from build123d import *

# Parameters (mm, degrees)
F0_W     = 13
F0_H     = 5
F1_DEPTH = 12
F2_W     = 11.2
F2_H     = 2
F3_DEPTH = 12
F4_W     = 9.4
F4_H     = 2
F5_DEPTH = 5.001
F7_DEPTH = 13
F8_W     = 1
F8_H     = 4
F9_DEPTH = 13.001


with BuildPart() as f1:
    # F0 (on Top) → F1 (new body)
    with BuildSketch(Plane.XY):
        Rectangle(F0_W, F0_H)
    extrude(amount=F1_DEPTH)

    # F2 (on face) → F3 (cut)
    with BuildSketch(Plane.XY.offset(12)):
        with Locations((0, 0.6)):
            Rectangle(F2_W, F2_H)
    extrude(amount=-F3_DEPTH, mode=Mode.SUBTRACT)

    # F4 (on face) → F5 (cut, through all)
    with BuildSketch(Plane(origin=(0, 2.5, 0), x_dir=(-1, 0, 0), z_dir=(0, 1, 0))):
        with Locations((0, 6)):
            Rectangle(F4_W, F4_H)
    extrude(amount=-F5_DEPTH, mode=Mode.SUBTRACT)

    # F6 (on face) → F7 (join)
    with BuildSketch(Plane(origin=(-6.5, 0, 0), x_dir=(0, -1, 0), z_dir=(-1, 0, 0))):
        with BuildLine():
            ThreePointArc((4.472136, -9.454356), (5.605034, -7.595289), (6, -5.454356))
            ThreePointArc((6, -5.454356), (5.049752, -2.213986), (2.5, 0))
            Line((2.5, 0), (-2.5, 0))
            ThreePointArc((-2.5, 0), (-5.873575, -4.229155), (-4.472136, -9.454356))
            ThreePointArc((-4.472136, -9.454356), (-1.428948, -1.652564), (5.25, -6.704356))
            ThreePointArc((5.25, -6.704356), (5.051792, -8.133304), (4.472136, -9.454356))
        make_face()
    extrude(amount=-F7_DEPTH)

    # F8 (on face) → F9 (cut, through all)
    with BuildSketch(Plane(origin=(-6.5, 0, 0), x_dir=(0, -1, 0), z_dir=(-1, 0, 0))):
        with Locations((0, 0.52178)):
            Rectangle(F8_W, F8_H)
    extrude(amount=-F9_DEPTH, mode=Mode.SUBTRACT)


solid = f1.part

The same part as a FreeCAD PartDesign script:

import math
import FreeCAD as App
import Part
import Sketcher

V = App.Vector
Q = App.Units.Quantity


def add_polygon(sketch, points):
    """Adds a closed chain of lines whose ends are joined by coincident constraints."""
    first, n = sketch.GeometryCount, len(points)
    for a, b in zip(points, points[1:] + points[:1]):
        sketch.addGeometry(Part.LineSegment(App.Vector(*a, 0), App.Vector(*b, 0)), False)
    for i in range(n):
        sketch.addConstraint(Sketcher.Constraint("Coincident", first + i, 2, first + (i + 1) % n, 1))

doc = App.newDocument("Part")
body = doc.addObject("PartDesign::Body", "Body")

sketch1 = body.newObject("Sketcher::SketchObject", "Sketch")
sketch1.AttachmentSupport = (doc.getObject("XY_Plane"), [""])
sketch1.MapMode = "FlatFace"
add_polygon(sketch1, [(-6, 2), (-6, -2), (6, -2), (6, 2)])
sketch1.addConstraint([
    Sketcher.Constraint("Vertical", 0),
    Sketcher.Constraint("Horizontal", 1),
    Sketcher.Constraint("Vertical", 2),
    Sketcher.Constraint("Horizontal", 3),
    Sketcher.Constraint("Symmetric", 0, 2, 2, 2, -1, 1),
    Sketcher.Constraint("DistanceX", 1, 1, 1, 2, Q("13 mm")),
    Sketcher.Constraint("DistanceY", 0, 2, 0, 1, Q("5 mm")),
])
pad1 = body.newObject("PartDesign::Pad", "Pad")
pad1.Profile = sketch1
pad1.Length = 12

sketch2 = body.newObject("Sketcher::SketchObject", "Sketch001")
sketch2.AttachmentSupport = (doc.getObject("XY_Plane"), [""])
sketch2.MapMode = "FlatFace"
sketch2.AttachmentOffset = App.Placement(V(0, 0, 12), App.Rotation())
add_polygon(sketch2, [(-5.6, 1.6), (-5.6, -0.4), (5.6, -0.4), (5.6, 1.6)])
sketch2.addConstraint([
    Sketcher.Constraint("Vertical", 0),
    Sketcher.Constraint("Horizontal", 1),
    Sketcher.Constraint("Vertical", 2),
    Sketcher.Constraint("Horizontal", 3),
    Sketcher.Constraint("DistanceY", 0, 2, 0, 1, Q("2 mm")),
    Sketcher.Constraint("DistanceX", 1, 1, 1, 2, Q("11.2 mm")),
    Sketcher.Constraint("DistanceX", 0, 2, -1, 1, Q("5.6 mm")),
    Sketcher.Constraint("DistanceY", 0, 2, -1, 1, Q("0.4 mm")),
])
pocket1 = body.newObject("PartDesign::Pocket", "Pocket")
pocket1.Profile = sketch2
pocket1.Length = 12

sketch3 = body.newObject("Sketcher::SketchObject", "Sketch002")
sketch3.AttachmentSupport = (doc.getObject("XZ_Plane"), [""])
sketch3.MapMode = "FlatFace"
sketch3.AttachmentOffset = App.Placement(V(0, 0, -2.5), App.Rotation())
add_polygon(sketch3, [(4.7, 7), (4.7, 5), (-4.7, 5), (-4.7, 7)])
sketch3.addConstraint([
    Sketcher.Constraint("Vertical", 0),
    Sketcher.Constraint("Horizontal", 1),
    Sketcher.Constraint("Vertical", 2),
    Sketcher.Constraint("Horizontal", 3),
    Sketcher.Constraint("DistanceY", 0, 2, 0, 1, Q("2 mm")),
    Sketcher.Constraint("DistanceX", 1, 2, 1, 1, Q("9.4 mm")),
    Sketcher.Constraint("DistanceY", -1, 1, 0, 2, Q("5 mm")),
    Sketcher.Constraint("DistanceX", -1, 1, 0, 2, Q("4.7 mm")),
])
pocket2 = body.newObject("PartDesign::Pocket", "Pocket001")
pocket2.Profile = sketch3
pocket2.Type = "ThroughAll"
pocket2.Reversed = True

sketch4 = body.newObject("Sketcher::SketchObject", "Sketch003")
sketch4.AttachmentSupport = (doc.getObject("YZ_Plane"), [""])
sketch4.MapMode = "FlatFace"
sketch4.AttachmentOffset = App.Placement(V(0, 0, -6.5), App.Rotation())
sketch4.addGeometry([
    Part.ArcOfCircle(Part.Circle(V(0, -5.5, 0), V(0, 0, 1), 6), math.radians(180), math.radians(222)),
    Part.ArcOfCircle(Part.Circle(V(0, -5.5, 0), V(0, 0, 1), 6), math.radians(115), math.radians(180)),
    Part.LineSegment(V(-2.5, 0, 0), V(2.5, 0, 0)),
    Part.ArcOfCircle(Part.Circle(V(0, -5.5, 0), V(0, 0, 1), 6), math.radians(-42), math.radians(65)),
    Part.ArcOfCircle(Part.Circle(V(0, -6.7, 0), V(0, 0, 1), 5.2), math.radians(-32), math.radians(180)),
    Part.ArcOfCircle(Part.Circle(V(0, -6.7, 0), V(0, 0, 1), 5.3), math.radians(-180), math.radians(-148)),
], False)
sketch4.addConstraint([
    Sketcher.Constraint("Tangent", 0, 1, 1, 2),
    Sketcher.Constraint("Coincident", 1, 1, 2, 1),
    Sketcher.Constraint("Coincident", 2, 2, 3, 2),
    Sketcher.Constraint("Coincident", 3, 1, 4, 1),
    Sketcher.Constraint("Tangent", 4, 2, 5, 1),
    Sketcher.Constraint("Coincident", 5, 2, 0, 2),
    Sketcher.Constraint("Horizontal", 2),
    Sketcher.Constraint("Coincident", 3, 3, 0, 3),
    Sketcher.Constraint("Equal", 0, 3),
    Sketcher.Constraint("Symmetric", 1, 1, 2, 2, -1, 1),
    Sketcher.Constraint("Symmetric", 3, 1, 5, 2, -2),
    Sketcher.Constraint("PointOnObject", 4, 3, -2),
    Sketcher.Constraint("Horizontal", 3, 3, 0, 1),
    Sketcher.Constraint("Radius", 0, Q("6 mm")),
    Sketcher.Constraint("DistanceX", 2, 1, 2, 2, Q("5 mm")),
    Sketcher.Constraint("Radius", 4, Q("5.25 mm")),
    Sketcher.Constraint("DistanceY", 3, 1, 1, 3, Q("3.999998 mm")),
    Sketcher.Constraint("DistanceY", 4, 2, 0, 1, Q("1.25 mm")),
])
pad2 = body.newObject("PartDesign::Pad", "Pad001")
pad2.Profile = sketch4
pad2.Length = 13

sketch5 = body.newObject("Sketcher::SketchObject", "Sketch004")
sketch5.AttachmentSupport = (doc.getObject("YZ_Plane"), [""])
sketch5.MapMode = "FlatFace"
sketch5.AttachmentOffset = App.Placement(V(0, 0, -6.5), App.Rotation())
add_polygon(sketch5, [(0.5, 2.5), (0.5, -1.5), (-0.5, -1.5), (-0.5, 2.5)])
sketch5.addConstraint([
    Sketcher.Constraint("Vertical", 0),
    Sketcher.Constraint("Horizontal", 1),
    Sketcher.Constraint("Vertical", 2),
    Sketcher.Constraint("Horizontal", 3),
    Sketcher.Constraint("DistanceX", 1, 2, 1, 1, Q("1 mm")),
    Sketcher.Constraint("DistanceY", 0, 2, 0, 1, Q("4 mm")),
    Sketcher.Constraint("DistanceX", -1, 1, 0, 2, Q("0.5 mm")),
    Sketcher.Constraint("DistanceY", 0, 2, -1, 1, Q("1.47822 mm")),
])
pocket3 = body.newObject("PartDesign::Pocket", "Pocket002")
pocket3.Profile = sketch5
pocket3.Type = "ThroughAll"
pocket3.Reversed = True

doc.recompute()
